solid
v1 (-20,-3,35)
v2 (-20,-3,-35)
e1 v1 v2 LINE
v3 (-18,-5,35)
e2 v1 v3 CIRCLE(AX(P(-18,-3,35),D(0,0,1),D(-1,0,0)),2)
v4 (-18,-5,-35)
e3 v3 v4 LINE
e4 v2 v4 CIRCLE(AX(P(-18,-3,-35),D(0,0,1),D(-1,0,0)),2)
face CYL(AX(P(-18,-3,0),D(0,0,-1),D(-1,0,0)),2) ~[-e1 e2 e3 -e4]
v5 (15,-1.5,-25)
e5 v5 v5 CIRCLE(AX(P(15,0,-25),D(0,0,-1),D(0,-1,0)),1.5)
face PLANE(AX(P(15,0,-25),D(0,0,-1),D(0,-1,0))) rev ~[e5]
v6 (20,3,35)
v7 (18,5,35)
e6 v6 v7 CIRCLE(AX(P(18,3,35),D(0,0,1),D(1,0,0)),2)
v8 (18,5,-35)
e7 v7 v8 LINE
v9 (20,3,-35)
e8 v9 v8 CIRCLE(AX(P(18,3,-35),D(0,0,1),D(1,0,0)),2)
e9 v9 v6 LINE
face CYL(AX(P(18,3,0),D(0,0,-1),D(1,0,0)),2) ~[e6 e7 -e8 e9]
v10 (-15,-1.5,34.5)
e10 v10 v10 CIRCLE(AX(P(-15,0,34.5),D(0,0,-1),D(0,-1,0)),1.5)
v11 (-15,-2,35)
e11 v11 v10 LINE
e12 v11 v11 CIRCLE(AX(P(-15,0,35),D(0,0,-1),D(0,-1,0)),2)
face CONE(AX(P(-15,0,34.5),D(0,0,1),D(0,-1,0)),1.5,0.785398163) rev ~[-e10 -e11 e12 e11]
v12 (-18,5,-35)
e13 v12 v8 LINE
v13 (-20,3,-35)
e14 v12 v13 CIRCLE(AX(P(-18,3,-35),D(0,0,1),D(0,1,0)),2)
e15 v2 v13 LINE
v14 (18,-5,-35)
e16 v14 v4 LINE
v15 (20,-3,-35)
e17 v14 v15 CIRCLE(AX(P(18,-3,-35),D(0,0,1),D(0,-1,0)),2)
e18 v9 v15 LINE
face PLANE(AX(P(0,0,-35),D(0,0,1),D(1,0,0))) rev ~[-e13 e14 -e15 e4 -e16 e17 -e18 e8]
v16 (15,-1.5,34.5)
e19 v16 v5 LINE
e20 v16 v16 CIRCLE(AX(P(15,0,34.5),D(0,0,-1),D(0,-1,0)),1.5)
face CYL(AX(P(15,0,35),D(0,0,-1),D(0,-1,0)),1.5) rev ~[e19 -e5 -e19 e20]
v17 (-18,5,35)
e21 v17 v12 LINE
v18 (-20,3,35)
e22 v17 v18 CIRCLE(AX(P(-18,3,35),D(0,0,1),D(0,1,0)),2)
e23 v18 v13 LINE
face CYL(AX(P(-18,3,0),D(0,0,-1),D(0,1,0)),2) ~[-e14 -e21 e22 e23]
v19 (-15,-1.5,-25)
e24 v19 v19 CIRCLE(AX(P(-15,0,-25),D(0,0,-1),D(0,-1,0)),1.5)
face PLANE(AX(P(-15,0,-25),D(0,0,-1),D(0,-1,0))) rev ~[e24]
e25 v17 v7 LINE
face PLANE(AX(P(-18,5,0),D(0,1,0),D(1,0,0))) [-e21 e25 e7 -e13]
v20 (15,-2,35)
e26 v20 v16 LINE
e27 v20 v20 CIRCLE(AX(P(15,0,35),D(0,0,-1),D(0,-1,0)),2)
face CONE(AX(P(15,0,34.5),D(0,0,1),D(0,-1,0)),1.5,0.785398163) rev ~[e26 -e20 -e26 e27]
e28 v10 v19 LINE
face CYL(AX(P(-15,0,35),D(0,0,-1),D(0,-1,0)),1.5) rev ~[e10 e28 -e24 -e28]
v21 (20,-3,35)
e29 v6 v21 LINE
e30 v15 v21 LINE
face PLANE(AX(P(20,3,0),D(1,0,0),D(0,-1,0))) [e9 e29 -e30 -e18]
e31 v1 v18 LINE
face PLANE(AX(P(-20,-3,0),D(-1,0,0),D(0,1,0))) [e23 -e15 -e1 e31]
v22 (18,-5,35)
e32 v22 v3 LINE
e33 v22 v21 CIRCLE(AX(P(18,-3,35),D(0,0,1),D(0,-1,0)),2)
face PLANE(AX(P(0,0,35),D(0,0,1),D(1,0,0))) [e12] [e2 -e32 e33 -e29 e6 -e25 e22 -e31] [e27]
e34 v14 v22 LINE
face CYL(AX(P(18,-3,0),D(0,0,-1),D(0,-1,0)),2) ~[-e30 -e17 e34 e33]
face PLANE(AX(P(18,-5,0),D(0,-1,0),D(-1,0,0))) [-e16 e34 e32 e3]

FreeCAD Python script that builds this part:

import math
import FreeCAD as App
import Part
import Sketcher
Q = App.Units.Quantity


def edges_at(feature, points):
    """Names of the edges that pass closest to the given points."""
    edges = feature.Shape.Edges
    near = lambda p: min(range(len(edges)), key=lambda i: edges[i].distToShape(Part.Vertex(*p))[0])
    return sorted({f"Edge{near(p) + 1}" for p in points})

doc = App.newDocument("Part")
body = doc.addObject("PartDesign::Body", "Body")

# Sketch on XY plane
sketch1 = body.newObject("Sketcher::SketchObject", "Sketch")
sketch1.AttachmentSupport = (doc.getObject("XY_Plane"), [""])
sketch1.MapMode = "FlatFace"
sketch1.addGeometry([
    Part.LineSegment(App.Vector(-18, -5, 0), App.Vector(18, -5, 0)),  # 0
    Part.ArcOfCircle(Part.Circle(App.Vector(18, -3, 0), App.Vector(0, 0, 1), 2), math.radians(-90), math.radians(0)),  # 1
    Part.LineSegment(App.Vector(20, -3, 0), App.Vector(20, 3, 0)),  # 2
    Part.ArcOfCircle(Part.Circle(App.Vector(18, 3, 0), App.Vector(0, 0, 1), 2), math.radians(0), math.radians(90)),  # 3
    Part.LineSegment(App.Vector(18, 5, 0), App.Vector(-18, 5, 0)),  # 4
    Part.ArcOfCircle(Part.Circle(App.Vector(-18, 3, 0), App.Vector(0, 0, 1), 2), math.radians(90), math.radians(180)),  # 5
    Part.LineSegment(App.Vector(-20, 3, 0), App.Vector(-20, -3, 0)),  # 6
    Part.ArcOfCircle(Part.Circle(App.Vector(-18, -3, 0), App.Vector(0, 0, 1), 2), math.radians(180), math.radians(270)),  # 7
], False)
sketch1.addConstraint([
    Sketcher.Constraint("Tangent", 0, 2, 1, 1),
    Sketcher.Constraint("Tangent", 1, 2, 2, 1),
    Sketcher.Constraint("Tangent", 2, 2, 3, 1),
    Sketcher.Constraint("Tangent", 3, 2, 4, 1),
    Sketcher.Constraint("Tangent", 4, 2, 5, 1),
    Sketcher.Constraint("Tangent", 5, 2, 6, 1),
    Sketcher.Constraint("Tangent", 6, 2, 7, 1),
    Sketcher.Constraint("Tangent", 7, 2, 0, 1),
    Sketcher.Constraint("Horizontal", 0),
    Sketcher.Constraint("Vertical", 2),
    Sketcher.Constraint("Horizontal", 4),
    Sketcher.Constraint("Vertical", 6),
    Sketcher.Constraint("Equal", 1, 3),
    Sketcher.Constraint("Equal", 3, 5),
    Sketcher.Constraint("Equal", 5, 7),
    Sketcher.Constraint("Symmetric", 1, 3, 5, 3, -1, 1),
    Sketcher.Constraint("Radius", 1, Q("2 mm")),
    Sketcher.Constraint("DistanceY", 0, 2, 3, 2, Q("10 mm")),
    Sketcher.Constraint("DistanceX", 0, 1, 0, 2, Q("36 mm")),
])
pad1 = body.newObject("PartDesign::Pad", "Pad")
pad1.Profile = sketch1
pad1.Length = 70
pad1.Midplane = True

# Sketch on XY plane
sketch2 = body.newObject("Sketcher::SketchObject", "Sketch001")
sketch2.AttachmentSupport = (doc.getObject("XY_Plane"), [""])
sketch2.MapMode = "FlatFace"
sketch2.AttachmentOffset = App.Placement(App.Vector(0, 0, 35), App.Rotation())
sketch2.addGeometry([
    Part.Circle(App.Vector(-15, 0, 0), App.Vector(0, 0, 1), 1.5),
    Part.Circle(App.Vector(15, 0, 0), App.Vector(0, 0, 1), 1.5),
], False)
sketch2.addConstraint([
    Sketcher.Constraint("Equal", 0, 1),
    Sketcher.Constraint("Symmetric", 0, 3, 1, 3, -1, 1),
    Sketcher.Constraint("PointOnObject", 0, 3, -1),
    Sketcher.Constraint("Diameter", 0, Q("3 mm")),
    Sketcher.Constraint("DistanceX", 0, 3, -1, 1, Q("15 mm")),
])
doc.recompute()
hole = body.newObject("PartDesign::Hole", "Hole")
hole.Profile = sketch2
hole.ThreadType = "None"
hole.Diameter = 3
hole.DepthType = "Dimension"
hole.Depth = 60
hole.DrillPoint = "Flat"
doc.recompute()

chamfer = body.newObject("PartDesign::Chamfer", "Chamfer")
chamfer.Base = (hole, edges_at(hole, [(-15, 1.5, 35), (15, 1.5, 35)]))
chamfer.Size = 0.5

doc.recompute()
